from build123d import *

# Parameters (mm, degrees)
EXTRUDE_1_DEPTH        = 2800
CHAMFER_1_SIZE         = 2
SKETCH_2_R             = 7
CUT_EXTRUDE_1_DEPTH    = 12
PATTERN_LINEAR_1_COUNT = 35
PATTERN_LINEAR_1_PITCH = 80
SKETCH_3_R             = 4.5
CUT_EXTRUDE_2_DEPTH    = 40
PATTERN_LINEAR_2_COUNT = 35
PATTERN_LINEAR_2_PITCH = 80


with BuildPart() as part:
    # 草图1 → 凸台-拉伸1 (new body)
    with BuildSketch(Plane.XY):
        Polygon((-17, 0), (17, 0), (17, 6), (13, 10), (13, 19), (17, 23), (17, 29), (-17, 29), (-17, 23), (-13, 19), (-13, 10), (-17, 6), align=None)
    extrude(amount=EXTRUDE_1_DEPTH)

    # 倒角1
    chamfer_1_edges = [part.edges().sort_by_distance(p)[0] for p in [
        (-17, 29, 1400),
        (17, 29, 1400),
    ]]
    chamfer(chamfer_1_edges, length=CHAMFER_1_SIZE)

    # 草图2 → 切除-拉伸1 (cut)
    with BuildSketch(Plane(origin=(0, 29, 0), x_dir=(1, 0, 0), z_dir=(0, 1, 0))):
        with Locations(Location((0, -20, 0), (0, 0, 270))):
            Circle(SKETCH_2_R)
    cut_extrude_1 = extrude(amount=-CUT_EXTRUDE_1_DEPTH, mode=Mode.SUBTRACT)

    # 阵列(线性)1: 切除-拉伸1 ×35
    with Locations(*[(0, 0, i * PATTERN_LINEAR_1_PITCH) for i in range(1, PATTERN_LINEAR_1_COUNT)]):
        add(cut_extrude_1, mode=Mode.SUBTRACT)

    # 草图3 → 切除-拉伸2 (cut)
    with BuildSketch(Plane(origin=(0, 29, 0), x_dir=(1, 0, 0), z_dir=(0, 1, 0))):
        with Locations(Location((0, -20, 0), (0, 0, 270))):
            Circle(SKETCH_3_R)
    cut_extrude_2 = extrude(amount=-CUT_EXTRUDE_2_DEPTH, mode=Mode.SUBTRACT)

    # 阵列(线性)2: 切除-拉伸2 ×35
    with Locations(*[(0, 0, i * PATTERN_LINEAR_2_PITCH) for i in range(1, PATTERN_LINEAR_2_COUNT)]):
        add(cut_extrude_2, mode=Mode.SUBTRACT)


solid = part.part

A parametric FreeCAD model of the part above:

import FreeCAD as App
import Part
import Sketcher

V = App.Vector
Q = App.Units.Quantity


def edges_at(feature, points):
    """Names of the edges that pass closest to the given points."""
    edges = feature.Shape.Edges
    near = lambda p: min(range(len(edges)), key=lambda i: edges[i].distToShape(Part.Vertex(*p))[0])
    return sorted({f"Edge{near(p) + 1}" for p in points})


def add_polygon(sketch, points):
    """Adds a closed chain of lines whose ends are joined by coincident constraints."""
    first, n = sketch.GeometryCount, len(points)
    for a, b in zip(points, points[1:] + points[:1]):
        sketch.addGeometry(Part.LineSegment(App.Vector(*a, 0), App.Vector(*b, 0)), False)
    for i in range(n):
        sketch.addConstraint(Sketcher.Constraint("Coincident", first + i, 2, first + (i + 1) % n, 1))

doc = App.newDocument("Part")
params = doc.addObject("Spreadsheet::Sheet", "Params")
for row, (alias, value) in enumerate([
    ("sketch1_width", "34 mm"),
    ("sketch1_height", "6 mm"),
    ("sketch1_height2", "9 mm"),
    ("pad1_length", "2800 mm"),
    ("chamfer_size", "2 mm"),
    ("sketch2_diameter", "14 mm"),
    ("pocket1_length", "12 mm"),
    ("linearpattern_pitch", "80 mm"),
    ("sketch3_diameter", "9 mm"),
    ("pocket2_length", "40 mm"),
    ("linearpattern2_pitch", "80 mm"),
], start=1):
    params.set(f"A{row}", alias)
    params.set(f"B{row}", "=" + value)
    params.setAlias(f"B{row}", alias)

body = doc.addObject("PartDesign::Body", "Body")

# Sketch on XY plane
sketch1 = body.newObject("Sketcher::SketchObject", "Sketch")
sketch1.AttachmentSupport = (doc.getObject("XY_Plane"), [""])
sketch1.MapMode = "FlatFace"
add_polygon(sketch1, [(-17, 0), (17, 0), (17, 6), (13, 10), (13, 19), (17, 23), (17, 29), (-17, 29), (-17, 23), (-13, 19), (-13, 10), (-17, 6)])  # lines 0-11
sketch1.addConstraint([
    Sketcher.Constraint("Horizontal", 0),
    Sketcher.Constraint("Vertical", 1),
    Sketcher.Constraint("Vertical", 3),
    Sketcher.Constraint("Vertical", 5),
    Sketcher.Constraint("Horizontal", 6),
    Sketcher.Constraint("Vertical", 7),
    Sketcher.Constraint("Vertical", 9),
    Sketcher.Constraint("Vertical", 11),
    Sketcher.Constraint("Symmetric", 0, 2, 11, 2, -1, 1),
    Sketcher.Constraint("Symmetric", 4, 2, 7, 2, -2),
    Sketcher.Constraint("Symmetric", 3, 2, 8, 2, -2),
    Sketcher.Constraint("Perpendicular", 2, 4),
    Sketcher.Constraint("Perpendicular", 4, 8),
    Sketcher.Constraint("Perpendicular", 8, 10),
    Sketcher.Constraint("Horizontal", 2, 2, 9, 2),
    Sketcher.Constraint("Vertical", 1, 2, 4, 2),
    Sketcher.Constraint("Equal", 1, 5),
    Sketcher.Constraint("DistanceX", 0, 1, 0, 2, Q("34 mm")),
    Sketcher.Constraint("DistanceY", 1, 1, 1, 2, Q("6 mm")),
    Sketcher.Constraint("DistanceY", 3, 1, 3, 2, Q("9 mm")),
    Sketcher.Constraint("DistanceX", -1, 1, 2, 2, Q("13 mm")),
])
sketch1.setExpression("Constraints[29]", "Params.sketch1_width")
sketch1.setExpression("Constraints[30]", "Params.sketch1_height")
sketch1.setExpression("Constraints[31]", "Params.sketch1_height2")
pad1 = body.newObject("PartDesign::Pad", "Pad")
pad1.Profile = sketch1
pad1.setExpression("Length", "Params.pad1_length")
doc.recompute()

chamfer = body.newObject("PartDesign::Chamfer", "Chamfer")
chamfer.Base = (pad1, edges_at(pad1, [(-17, 29, 1400), (17, 29, 1400)]))
chamfer.setExpression("Size", "Params.chamfer_size")

# Sketch on XZ plane
sketch2 = body.newObject("Sketcher::SketchObject", "Sketch001")
sketch2.AttachmentSupport = (doc.getObject("XZ_Plane"), [""])
sketch2.MapMode = "FlatFace"
sketch2.AttachmentOffset = App.Placement(V(0, 0, -29), App.Rotation())
sketch2.addGeometry(Part.Circle(V(0, 20, 0), V(0, 0, 1), 7), False)
sketch2.addConstraint([
    Sketcher.Constraint("PointOnObject", 0, 3, -2),
    Sketcher.Constraint("Diameter", 0, Q("14 mm")),
    Sketcher.Constraint("DistanceY", -1, 1, 0, 3, Q("20 mm")),
])
sketch2.setExpression("Constraints[1]", "Params.sketch2_diameter")
pocket1 = body.newObject("PartDesign::Pocket", "Pocket")
pocket1.Profile = sketch2
pocket1.setExpression("Length", "Params.pocket1_length")
pocket1.Reversed = True
doc.recompute()

linearpattern = body.newObject("PartDesign::LinearPattern", "LinearPattern")
linearpattern.Originals = [pocket1]
linearpattern.Direction = (doc.getObject("Z_Axis"), [""])
linearpattern.Mode = "offset"
linearpattern.setExpression("Offset", "Params.linearpattern_pitch")
linearpattern.Occurrences = 35
body.Tip = linearpattern

# Sketch on XZ plane
sketch3 = body.newObject("Sketcher::SketchObject", "Sketch002")
sketch3.AttachmentSupport = (doc.getObject("XZ_Plane"), [""])
sketch3.MapMode = "FlatFace"
sketch3.AttachmentOffset = App.Placement(V(0, 0, -29), App.Rotation())
sketch3.addGeometry(Part.Circle(V(0, 20, 0), V(0, 0, 1), 4.5), False)
sketch3.addConstraint([
    Sketcher.Constraint("PointOnObject", 0, 3, -2),
    Sketcher.Constraint("Diameter", 0, Q("9 mm")),
    Sketcher.Constraint("DistanceY", -1, 1, 0, 3, Q("20 mm")),
])
sketch3.setExpression("Constraints[1]", "Params.sketch3_diameter")
pocket2 = body.newObject("PartDesign::Pocket", "Pocket001")
pocket2.Profile = sketch3
pocket2.setExpression("Length", "Params.pocket2_length")
pocket2.Reversed = True
doc.recompute()

linearpattern2 = body.newObject("PartDesign::LinearPattern", "LinearPattern001")
linearpattern2.Originals = [pocket2]
linearpattern2.Direction = (doc.getObject("Z_Axis"), [""])
linearpattern2.Mode = "offset"
linearpattern2.setExpression("Offset", "Params.linearpattern2_pitch")
linearpattern2.Occurrences = 35
body.Tip = linearpattern2

doc.recompute()
